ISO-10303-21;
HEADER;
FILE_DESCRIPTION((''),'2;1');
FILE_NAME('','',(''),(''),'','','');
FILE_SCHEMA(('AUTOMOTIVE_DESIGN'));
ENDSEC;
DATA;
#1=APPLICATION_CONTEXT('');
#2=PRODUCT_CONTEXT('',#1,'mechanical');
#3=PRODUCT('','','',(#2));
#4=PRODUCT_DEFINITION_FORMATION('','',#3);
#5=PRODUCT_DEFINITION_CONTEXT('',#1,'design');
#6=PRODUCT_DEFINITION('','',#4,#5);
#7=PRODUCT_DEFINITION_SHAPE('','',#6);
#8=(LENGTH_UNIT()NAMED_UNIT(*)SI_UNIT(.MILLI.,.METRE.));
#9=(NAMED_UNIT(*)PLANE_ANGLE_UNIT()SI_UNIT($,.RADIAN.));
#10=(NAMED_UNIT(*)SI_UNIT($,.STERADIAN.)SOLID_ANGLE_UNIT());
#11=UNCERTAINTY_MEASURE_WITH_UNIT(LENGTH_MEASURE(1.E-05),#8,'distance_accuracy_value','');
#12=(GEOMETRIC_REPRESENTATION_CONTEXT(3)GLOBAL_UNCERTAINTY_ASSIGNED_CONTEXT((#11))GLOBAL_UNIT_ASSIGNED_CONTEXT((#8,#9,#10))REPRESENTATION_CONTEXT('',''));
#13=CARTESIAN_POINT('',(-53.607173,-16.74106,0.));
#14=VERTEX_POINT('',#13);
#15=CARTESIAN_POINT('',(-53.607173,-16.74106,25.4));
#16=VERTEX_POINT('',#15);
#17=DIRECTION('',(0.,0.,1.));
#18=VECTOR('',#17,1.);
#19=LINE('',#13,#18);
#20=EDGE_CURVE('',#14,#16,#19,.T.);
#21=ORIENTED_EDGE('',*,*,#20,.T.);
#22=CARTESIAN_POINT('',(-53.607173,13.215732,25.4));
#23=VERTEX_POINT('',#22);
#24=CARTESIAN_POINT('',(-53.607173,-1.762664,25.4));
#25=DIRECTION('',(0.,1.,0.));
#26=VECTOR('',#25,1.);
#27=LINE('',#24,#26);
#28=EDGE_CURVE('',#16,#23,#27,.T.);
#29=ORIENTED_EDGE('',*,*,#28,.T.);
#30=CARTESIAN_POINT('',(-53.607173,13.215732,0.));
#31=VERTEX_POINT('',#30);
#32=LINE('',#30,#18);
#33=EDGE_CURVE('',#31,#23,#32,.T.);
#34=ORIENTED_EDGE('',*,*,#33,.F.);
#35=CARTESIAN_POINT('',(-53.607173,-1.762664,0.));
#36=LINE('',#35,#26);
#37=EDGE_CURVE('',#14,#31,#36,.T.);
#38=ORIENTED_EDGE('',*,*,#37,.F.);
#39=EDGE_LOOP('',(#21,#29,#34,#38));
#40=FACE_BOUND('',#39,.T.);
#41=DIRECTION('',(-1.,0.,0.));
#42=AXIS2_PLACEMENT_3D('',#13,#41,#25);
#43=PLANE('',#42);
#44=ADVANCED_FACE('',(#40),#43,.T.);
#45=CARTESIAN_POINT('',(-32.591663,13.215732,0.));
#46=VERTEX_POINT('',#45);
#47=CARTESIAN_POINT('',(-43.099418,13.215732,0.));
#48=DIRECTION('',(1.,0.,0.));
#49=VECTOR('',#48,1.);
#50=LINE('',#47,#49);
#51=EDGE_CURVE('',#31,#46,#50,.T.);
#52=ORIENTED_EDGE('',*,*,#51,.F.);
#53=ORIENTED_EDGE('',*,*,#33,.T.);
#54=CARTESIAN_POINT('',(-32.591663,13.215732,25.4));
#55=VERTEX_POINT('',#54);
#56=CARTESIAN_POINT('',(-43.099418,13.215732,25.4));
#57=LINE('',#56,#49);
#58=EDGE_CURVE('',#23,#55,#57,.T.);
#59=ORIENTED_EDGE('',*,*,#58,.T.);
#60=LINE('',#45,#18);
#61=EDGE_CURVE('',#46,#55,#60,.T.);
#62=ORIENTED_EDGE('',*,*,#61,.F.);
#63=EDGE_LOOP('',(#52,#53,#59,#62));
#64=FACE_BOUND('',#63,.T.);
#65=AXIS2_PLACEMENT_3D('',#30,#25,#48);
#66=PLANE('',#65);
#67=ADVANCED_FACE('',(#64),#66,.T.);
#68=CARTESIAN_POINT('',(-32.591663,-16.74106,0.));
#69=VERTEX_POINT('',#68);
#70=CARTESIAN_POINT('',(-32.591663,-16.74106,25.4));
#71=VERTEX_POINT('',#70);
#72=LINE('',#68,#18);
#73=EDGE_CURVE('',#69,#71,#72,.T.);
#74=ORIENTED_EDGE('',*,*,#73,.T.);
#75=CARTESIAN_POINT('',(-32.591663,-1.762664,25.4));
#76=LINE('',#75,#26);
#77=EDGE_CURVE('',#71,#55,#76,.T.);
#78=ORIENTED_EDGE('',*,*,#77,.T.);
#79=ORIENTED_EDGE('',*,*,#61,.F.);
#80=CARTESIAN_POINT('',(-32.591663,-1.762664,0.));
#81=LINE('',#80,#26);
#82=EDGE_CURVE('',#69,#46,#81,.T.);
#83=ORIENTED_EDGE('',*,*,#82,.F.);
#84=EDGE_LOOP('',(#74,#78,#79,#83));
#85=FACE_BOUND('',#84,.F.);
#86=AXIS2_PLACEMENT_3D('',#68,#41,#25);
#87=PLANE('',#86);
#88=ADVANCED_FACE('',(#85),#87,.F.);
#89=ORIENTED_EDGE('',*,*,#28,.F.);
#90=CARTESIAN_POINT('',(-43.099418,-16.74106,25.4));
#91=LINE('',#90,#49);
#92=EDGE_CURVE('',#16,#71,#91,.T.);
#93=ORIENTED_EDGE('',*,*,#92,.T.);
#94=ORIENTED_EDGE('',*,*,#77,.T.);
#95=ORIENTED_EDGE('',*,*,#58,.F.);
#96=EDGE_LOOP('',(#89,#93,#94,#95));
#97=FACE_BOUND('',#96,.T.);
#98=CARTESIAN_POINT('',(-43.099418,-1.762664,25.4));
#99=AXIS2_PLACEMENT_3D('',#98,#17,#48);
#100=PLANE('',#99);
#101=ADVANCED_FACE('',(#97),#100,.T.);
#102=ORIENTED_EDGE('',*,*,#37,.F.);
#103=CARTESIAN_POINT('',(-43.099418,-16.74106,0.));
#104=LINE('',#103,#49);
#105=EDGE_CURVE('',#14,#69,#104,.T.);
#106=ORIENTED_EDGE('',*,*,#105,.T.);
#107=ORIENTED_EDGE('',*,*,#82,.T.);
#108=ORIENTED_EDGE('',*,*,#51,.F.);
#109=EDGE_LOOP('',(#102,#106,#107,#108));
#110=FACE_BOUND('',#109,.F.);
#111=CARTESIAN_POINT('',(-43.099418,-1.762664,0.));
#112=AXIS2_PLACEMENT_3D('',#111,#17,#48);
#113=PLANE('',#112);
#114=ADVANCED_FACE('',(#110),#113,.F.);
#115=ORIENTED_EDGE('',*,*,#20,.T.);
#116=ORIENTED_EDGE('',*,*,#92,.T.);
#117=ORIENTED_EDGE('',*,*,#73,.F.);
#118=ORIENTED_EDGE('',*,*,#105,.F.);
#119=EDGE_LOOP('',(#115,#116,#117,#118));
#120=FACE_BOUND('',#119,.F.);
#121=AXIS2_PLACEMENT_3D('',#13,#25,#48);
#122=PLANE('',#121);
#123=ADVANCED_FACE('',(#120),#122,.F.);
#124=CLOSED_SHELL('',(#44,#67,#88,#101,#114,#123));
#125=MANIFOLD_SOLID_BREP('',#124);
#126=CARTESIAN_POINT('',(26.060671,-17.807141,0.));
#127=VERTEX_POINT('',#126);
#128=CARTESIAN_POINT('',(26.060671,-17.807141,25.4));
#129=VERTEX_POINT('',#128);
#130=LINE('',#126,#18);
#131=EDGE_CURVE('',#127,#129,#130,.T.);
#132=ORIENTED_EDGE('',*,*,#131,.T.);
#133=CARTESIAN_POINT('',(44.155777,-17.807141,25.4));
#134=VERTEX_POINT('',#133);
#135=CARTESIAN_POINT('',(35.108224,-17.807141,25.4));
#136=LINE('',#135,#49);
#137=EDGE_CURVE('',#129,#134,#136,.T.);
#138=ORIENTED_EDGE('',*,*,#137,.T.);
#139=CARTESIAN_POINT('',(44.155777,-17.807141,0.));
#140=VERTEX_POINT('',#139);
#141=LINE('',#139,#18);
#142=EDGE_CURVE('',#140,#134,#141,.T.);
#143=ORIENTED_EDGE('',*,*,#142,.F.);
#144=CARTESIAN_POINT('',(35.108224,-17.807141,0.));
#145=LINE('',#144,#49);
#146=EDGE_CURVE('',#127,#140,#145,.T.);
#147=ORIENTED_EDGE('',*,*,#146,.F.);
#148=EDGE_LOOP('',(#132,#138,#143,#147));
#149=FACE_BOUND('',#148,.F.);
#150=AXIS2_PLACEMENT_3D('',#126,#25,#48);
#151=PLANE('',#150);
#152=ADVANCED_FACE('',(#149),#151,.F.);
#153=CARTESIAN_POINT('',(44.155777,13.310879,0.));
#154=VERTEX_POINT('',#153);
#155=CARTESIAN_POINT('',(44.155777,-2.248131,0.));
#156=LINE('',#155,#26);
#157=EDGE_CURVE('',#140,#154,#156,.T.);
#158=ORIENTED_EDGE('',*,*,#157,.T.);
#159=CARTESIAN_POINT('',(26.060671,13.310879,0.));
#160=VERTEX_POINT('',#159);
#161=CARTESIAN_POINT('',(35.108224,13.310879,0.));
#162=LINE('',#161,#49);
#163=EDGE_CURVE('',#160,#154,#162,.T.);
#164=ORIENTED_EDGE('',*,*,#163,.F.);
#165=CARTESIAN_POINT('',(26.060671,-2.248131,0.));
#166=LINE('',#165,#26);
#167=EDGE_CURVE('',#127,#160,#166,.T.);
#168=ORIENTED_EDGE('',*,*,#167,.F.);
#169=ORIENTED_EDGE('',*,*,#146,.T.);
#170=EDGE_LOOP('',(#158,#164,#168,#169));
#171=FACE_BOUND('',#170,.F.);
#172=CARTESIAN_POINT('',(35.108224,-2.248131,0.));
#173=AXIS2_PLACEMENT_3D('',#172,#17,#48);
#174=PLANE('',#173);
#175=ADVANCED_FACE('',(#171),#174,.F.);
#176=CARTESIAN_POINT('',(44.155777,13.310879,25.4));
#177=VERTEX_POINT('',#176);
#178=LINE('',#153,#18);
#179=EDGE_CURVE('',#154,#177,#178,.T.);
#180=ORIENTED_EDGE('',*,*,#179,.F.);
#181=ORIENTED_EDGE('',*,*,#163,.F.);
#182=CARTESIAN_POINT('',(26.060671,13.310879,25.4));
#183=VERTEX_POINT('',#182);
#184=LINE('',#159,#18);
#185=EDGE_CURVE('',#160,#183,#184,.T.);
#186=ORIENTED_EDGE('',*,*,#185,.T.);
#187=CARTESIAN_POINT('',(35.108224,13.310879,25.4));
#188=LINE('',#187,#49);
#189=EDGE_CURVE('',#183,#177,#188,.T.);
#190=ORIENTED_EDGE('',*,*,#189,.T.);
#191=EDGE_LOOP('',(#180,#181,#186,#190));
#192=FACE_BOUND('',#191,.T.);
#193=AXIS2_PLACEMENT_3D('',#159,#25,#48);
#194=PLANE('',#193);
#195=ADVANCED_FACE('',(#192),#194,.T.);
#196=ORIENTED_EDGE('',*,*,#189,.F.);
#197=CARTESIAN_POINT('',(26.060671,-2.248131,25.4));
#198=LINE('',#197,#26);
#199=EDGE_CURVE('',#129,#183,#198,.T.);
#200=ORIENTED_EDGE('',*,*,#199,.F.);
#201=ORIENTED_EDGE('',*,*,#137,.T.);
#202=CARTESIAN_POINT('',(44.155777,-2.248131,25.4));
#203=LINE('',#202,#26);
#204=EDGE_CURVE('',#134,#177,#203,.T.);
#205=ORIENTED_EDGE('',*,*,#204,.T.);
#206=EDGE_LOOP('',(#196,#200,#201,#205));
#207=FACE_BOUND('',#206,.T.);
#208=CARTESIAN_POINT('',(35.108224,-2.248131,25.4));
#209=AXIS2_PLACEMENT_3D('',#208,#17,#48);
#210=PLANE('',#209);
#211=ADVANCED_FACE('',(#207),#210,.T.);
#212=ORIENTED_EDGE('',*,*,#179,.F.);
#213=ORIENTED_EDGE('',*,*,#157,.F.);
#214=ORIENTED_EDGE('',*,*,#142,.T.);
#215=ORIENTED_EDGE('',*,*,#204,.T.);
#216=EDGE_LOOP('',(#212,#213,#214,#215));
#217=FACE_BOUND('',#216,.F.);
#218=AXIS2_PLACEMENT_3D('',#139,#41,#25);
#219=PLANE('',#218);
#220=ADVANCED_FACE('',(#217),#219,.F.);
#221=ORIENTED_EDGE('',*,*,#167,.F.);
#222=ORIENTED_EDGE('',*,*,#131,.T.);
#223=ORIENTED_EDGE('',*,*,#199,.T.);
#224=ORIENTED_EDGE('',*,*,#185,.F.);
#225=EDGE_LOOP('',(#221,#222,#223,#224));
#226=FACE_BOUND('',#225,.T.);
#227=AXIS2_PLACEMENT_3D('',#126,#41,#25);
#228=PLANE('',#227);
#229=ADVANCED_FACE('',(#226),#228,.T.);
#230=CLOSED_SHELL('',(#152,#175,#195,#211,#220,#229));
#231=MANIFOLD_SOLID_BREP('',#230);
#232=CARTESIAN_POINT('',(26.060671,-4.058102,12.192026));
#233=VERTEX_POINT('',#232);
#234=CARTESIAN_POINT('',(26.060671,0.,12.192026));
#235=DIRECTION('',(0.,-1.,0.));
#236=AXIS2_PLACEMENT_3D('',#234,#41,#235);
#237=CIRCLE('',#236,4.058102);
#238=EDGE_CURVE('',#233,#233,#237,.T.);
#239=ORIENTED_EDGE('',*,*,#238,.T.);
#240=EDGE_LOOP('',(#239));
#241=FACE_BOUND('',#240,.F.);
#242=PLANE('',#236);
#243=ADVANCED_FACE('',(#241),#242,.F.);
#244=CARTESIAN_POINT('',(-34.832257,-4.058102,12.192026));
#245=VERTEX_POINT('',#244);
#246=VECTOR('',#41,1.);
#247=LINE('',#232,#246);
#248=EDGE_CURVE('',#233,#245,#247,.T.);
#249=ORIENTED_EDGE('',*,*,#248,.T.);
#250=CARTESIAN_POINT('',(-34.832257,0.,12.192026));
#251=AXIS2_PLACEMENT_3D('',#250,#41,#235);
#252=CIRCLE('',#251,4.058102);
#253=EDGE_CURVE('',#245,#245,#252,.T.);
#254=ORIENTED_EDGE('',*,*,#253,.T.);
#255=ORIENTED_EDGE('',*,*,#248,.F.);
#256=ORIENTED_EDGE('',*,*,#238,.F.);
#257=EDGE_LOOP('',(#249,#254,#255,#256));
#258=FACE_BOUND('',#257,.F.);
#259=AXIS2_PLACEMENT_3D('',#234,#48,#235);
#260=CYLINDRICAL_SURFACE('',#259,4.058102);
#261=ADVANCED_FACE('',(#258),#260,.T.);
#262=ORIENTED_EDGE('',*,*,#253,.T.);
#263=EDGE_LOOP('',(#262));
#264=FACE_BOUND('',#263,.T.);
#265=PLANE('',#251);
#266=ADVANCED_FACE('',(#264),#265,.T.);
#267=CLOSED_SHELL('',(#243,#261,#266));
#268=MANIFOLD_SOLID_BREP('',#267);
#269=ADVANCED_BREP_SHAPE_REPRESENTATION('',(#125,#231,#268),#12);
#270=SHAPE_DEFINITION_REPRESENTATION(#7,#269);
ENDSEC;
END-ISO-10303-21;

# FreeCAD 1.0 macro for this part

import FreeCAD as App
import Part
import Sketcher

V = App.Vector
Q = App.Units.Quantity

doc = App.newDocument("Part")
body = doc.addObject("PartDesign::Body", "Body")

sketch1 = body.newObject("Sketcher::SketchObject", "Sketch")
sketch1.AttachmentSupport = (doc.getObject("XY_Plane"), [""])
sketch1.MapMode = "FlatFace"
sketch1.addGeometry(Part.LineSegment(V(26.060671, 13.310879, 0), V(26.060671, -17.807141, 0)), False)
sketch1.addGeometry(Part.LineSegment(V(26.060671, -17.807141, 0), V(44.155777, -17.807141, 0)), False)
sketch1.addGeometry(Part.LineSegment(V(44.155777, -17.807141, 0), V(44.155777, 13.310879, 0)), False)
sketch1.addGeometry(Part.LineSegment(V(44.155777, 13.310879, 0), V(26.060671, 13.310879, 0)), False)
sketch1.addConstraint(Sketcher.Constraint("Coincident", 0, 2, 1, 1))
sketch1.addConstraint(Sketcher.Constraint("Coincident", 1, 2, 2, 1))
sketch1.addConstraint(Sketcher.Constraint("Coincident", 2, 2, 3, 1))
sketch1.addConstraint(Sketcher.Constraint("Coincident", 3, 2, 0, 1))
sketch1.addConstraint(Sketcher.Constraint("Vertical", 0))
sketch1.addConstraint(Sketcher.Constraint("Horizontal", 1))
sketch1.addConstraint(Sketcher.Constraint("Vertical", 2))
sketch1.addConstraint(Sketcher.Constraint("Horizontal", 3))
sketch1.addConstraint(Sketcher.Constraint("DistanceY", 0, 2, 0, 1, 31.11802))
sketch1.addConstraint(Sketcher.Constraint("DistanceX", 1, 1, 1, 2, 18.095106))
sketch1.addConstraint(Sketcher.Constraint("DistanceX", -1, 1, 0, 2, 26.060671))
sketch1.addConstraint(Sketcher.Constraint("DistanceY", 0, 2, -1, 1, 17.807141))
pad1 = body.newObject("PartDesign::Pad", "Pad")
pad1.Profile = sketch1
pad1.Length = Q("1 in")
body2 = doc.addObject("PartDesign::Body", "Body001")

sketch2 = body2.newObject("Sketcher::SketchObject", "Sketch001")
sketch2.AttachmentSupport = (doc.getObject("XY_Plane001"), [""])
sketch2.MapMode = "FlatFace"
sketch2.addGeometry(Part.LineSegment(V(-53.607173, 13.215732, 0), V(-53.607173, -16.74106, 0)), False)
sketch2.addGeometry(Part.LineSegment(V(-53.607173, -16.74106, 0), V(-32.591663, -16.74106, 0)), False)
sketch2.addGeometry(Part.LineSegment(V(-32.591663, -16.74106, 0), V(-32.591663, 13.215732, 0)), False)
sketch2.addGeometry(Part.LineSegment(V(-32.591663, 13.215732, 0), V(-53.607173, 13.215732, 0)), False)
sketch2.addConstraint(Sketcher.Constraint("Coincident", 0, 2, 1, 1))
sketch2.addConstraint(Sketcher.Constraint("Coincident", 1, 2, 2, 1))
sketch2.addConstraint(Sketcher.Constraint("Coincident", 2, 2, 3, 1))
sketch2.addConstraint(Sketcher.Constraint("Coincident", 3, 2, 0, 1))
sketch2.addConstraint(Sketcher.Constraint("Vertical", 0))
sketch2.addConstraint(Sketcher.Constraint("Horizontal", 1))
sketch2.addConstraint(Sketcher.Constraint("Vertical", 2))
sketch2.addConstraint(Sketcher.Constraint("Horizontal", 3))
sketch2.addConstraint(Sketcher.Constraint("DistanceX", 1, 1, 1, 2, 21.01551))
sketch2.addConstraint(Sketcher.Constraint("DistanceY", 0, 2, 0, 1, 29.956792))
sketch2.addConstraint(Sketcher.Constraint("DistanceY", 0, 2, -1, 1, 16.74106))
sketch2.addConstraint(Sketcher.Constraint("DistanceX", 0, 2, -1, 1, 53.607173))
pad2 = body2.newObject("PartDesign::Pad", "Pad001")
pad2.Profile = sketch2
pad2.Length = Q("1 in")
body3 = doc.addObject("PartDesign::Body", "Body002")

sketch3 = body3.newObject("Sketcher::SketchObject", "Sketch002")
sketch3.AttachmentSupport = (doc.getObject("YZ_Plane002"), [""])
sketch3.MapMode = "FlatFace"
sketch3.AttachmentOffset = App.Placement(V(0, 0, 26.060671), App.Rotation())
sketch3.addGeometry(Part.Circle(V(0, 12.192026, 0), V(0, 0, 1), 4.058102), False)
sketch3.addConstraint(Sketcher.Constraint("PointOnObject", 0, 3, -2))
sketch3.addConstraint(Sketcher.Constraint("Diameter", 0, 8.116204))
sketch3.addConstraint(Sketcher.Constraint("DistanceY", -1, 1, 0, 3, 12.192026))
pad3 = body3.newObject("PartDesign::Pad", "Pad002")
pad3.Profile = sketch3
pad3.Length = 60.892928
pad3.Reversed = True

doc.recompute()
